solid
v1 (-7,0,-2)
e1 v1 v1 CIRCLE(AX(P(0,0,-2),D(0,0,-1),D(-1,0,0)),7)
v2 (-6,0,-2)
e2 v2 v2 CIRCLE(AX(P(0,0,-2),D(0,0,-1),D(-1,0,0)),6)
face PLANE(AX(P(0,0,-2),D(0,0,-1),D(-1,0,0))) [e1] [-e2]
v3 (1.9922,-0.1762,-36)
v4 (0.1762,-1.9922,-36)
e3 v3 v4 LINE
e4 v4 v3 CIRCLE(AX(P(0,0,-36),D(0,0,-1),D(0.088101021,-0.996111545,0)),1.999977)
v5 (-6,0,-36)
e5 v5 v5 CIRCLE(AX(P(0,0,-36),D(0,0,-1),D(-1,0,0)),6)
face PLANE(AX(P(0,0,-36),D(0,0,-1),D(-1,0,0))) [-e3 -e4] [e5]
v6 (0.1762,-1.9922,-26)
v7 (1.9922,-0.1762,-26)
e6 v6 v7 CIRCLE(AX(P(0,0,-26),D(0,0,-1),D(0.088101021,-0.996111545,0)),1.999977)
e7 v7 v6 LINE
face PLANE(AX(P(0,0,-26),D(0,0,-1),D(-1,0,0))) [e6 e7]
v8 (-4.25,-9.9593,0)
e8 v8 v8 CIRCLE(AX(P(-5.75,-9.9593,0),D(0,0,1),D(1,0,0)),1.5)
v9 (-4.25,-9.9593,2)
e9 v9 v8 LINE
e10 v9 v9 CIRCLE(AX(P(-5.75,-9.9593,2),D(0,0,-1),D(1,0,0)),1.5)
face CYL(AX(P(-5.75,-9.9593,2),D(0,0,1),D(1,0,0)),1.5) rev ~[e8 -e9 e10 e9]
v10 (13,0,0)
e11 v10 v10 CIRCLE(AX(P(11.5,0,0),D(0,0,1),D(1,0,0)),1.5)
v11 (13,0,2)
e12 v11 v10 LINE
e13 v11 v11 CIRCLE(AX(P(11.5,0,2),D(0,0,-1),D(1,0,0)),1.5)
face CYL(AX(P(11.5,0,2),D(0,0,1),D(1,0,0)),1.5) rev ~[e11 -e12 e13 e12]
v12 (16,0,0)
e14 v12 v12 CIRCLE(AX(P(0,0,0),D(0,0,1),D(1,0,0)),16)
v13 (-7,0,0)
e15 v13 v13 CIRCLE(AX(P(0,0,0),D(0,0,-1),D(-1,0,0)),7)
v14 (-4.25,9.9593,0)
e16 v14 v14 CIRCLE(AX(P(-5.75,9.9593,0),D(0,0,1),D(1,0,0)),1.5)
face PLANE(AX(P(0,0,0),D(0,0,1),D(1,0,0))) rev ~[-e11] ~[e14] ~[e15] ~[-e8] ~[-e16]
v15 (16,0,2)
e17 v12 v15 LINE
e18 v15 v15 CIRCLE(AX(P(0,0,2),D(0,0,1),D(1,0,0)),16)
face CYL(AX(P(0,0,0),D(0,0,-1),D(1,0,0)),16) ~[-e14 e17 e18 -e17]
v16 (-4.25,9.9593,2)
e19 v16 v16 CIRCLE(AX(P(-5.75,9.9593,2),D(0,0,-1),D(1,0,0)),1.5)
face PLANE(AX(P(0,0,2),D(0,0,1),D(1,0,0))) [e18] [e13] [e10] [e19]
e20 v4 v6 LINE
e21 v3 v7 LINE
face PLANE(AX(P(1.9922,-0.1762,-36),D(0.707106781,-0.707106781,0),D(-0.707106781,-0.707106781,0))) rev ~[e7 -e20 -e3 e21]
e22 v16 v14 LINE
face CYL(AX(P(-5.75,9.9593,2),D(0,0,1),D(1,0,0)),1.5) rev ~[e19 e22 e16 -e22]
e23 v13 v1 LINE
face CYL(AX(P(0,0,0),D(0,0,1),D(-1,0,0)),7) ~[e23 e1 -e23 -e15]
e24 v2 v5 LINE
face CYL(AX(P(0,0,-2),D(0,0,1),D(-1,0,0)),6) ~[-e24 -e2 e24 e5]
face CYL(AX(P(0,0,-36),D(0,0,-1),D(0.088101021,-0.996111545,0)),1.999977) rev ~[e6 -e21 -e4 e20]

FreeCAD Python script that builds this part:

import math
import FreeCAD as App
import Part
import Sketcher
Q = App.Units.Quantity

doc = App.newDocument("Part")
body = doc.addObject("PartDesign::Body", "Body")

sketch1 = doc.addObject("Sketcher::SketchObject", "Sketch")
body.addObject(sketch1)
sketch1.AttachmentSupport = (doc.XY_Plane, [""])
sketch1.MapMode = "FlatFace"
sketch1.addGeometry(Part.Circle(App.Vector(0, 0, 0), App.Vector(0, 0, 1), 16), False)
sketch1.addConstraint([
    Sketcher.Constraint("Coincident", 0, 3, -1, 1),
    Sketcher.Constraint("Diameter", 0, 32.0),
])
pad1 = doc.addObject("PartDesign::Pad", "Pad")
body.addObject(pad1)
pad1.Profile = sketch1
pad1.Length = 2

sketch2 = doc.addObject("Sketcher::SketchObject", "Sketch001")
body.addObject(sketch2)
sketch2.AttachmentSupport = (doc.XY_Plane, [""])
sketch2.MapMode = "FlatFace"
sketch2.addGeometry(Part.Circle(App.Vector(0, 0, 0), App.Vector(0, 0, 1), 7), False)
sketch2.addConstraint([
    Sketcher.Constraint("Coincident", 0, 3, -1, 1),
    Sketcher.Constraint("Diameter", 0, 14.0),
])
pad2 = doc.addObject("PartDesign::Pad", "Pad001")
body.addObject(pad2)
pad2.Profile = sketch2
pad2.Length = 2
pad2.Reversed = True

sketch3 = doc.addObject("Sketcher::SketchObject", "Sketch002")
body.addObject(sketch3)
sketch3.AttachmentSupport = (doc.XY_Plane, [""])
sketch3.MapMode = "FlatFace"
sketch3.AttachmentOffset = App.Placement(App.Vector(0, 0, -2), App.Rotation())
sketch3.addGeometry(Part.Circle(App.Vector(0, 0, 0), App.Vector(0, 0, 1), 6), False)
sketch3.addConstraint([
    Sketcher.Constraint("Coincident", 0, 3, -1, 1),
    Sketcher.Constraint("Diameter", 0, 12.0),
])
pad3 = doc.addObject("PartDesign::Pad", "Pad002")
body.addObject(pad3)
pad3.Profile = sketch3
pad3.Length = 34
pad3.Reversed = True

sketch4 = doc.addObject("Sketcher::SketchObject", "Sketch003")
body.addObject(sketch4)
sketch4.AttachmentSupport = (doc.XY_Plane, [""])
sketch4.MapMode = "FlatFace"
sketch4.AttachmentOffset = App.Placement(App.Vector(0, 0, -36), App.Rotation())
sketch4.addGeometry([
    Part.LineSegment(App.Vector(2, -0.2, 0), App.Vector(0.2, -2, 0)),
    Part.ArcOfCircle(Part.Circle(App.Vector(0, 0, 0), App.Vector(0, 0, 1), 2), math.radians(-5), math.radians(275)),
], False)
sketch4.addConstraint([
    Sketcher.Constraint("Coincident", 0, 1, 1, 1),
    Sketcher.Constraint("Coincident", 1, 2, 0, 2),
    Sketcher.Constraint("Coincident", 1, 3, -1, 1),
    Sketcher.Constraint("Radius", 1, 2.0),
    Sketcher.Constraint("Angle", 0, Q("-135 deg")),
    Sketcher.Constraint("DistanceX", 1, 2, 0, 1, 1.816),
])
pocket1 = doc.addObject("PartDesign::Pocket", "Pocket")
body.addObject(pocket1)
pocket1.Profile = sketch4
pocket1.Length = 10
pocket1.Reversed = True

sketch5 = doc.addObject("Sketcher::SketchObject", "Sketch004")
body.addObject(sketch5)
sketch5.AttachmentSupport = (doc.XY_Plane, [""])
sketch5.MapMode = "FlatFace"
sketch5.AttachmentOffset = App.Placement(App.Vector(0, 0, 2), App.Rotation())
sketch5.addGeometry([
    Part.Circle(App.Vector(-5.8, -10, 0), App.Vector(0, 0, 1), 1.5),
    Part.Circle(App.Vector(-5.8, 10, 0), App.Vector(0, 0, 1), 1.5),
    Part.Circle(App.Vector(11.5, 0, 0), App.Vector(0, 0, 1), 1.5),
], False)
sketch5.addConstraint([
    Sketcher.Constraint("Equal", 0, 1),
    Sketcher.Constraint("Equal", 1, 2),
    Sketcher.Constraint("Symmetric", 0, 3, 1, 3, -1),
    Sketcher.Constraint("PointOnObject", 2, 3, -1),
    Sketcher.Constraint("Diameter", 0, 3.0),
    Sketcher.Constraint("DistanceX", -1, 1, 2, 3, 11.5),
    Sketcher.Constraint("DistanceX", 0, 3, -1, 1, 5.75),
    Sketcher.Constraint("DistanceY", 0, 3, -1, 1, 9.9593),
])
pocket2 = doc.addObject("PartDesign::Pocket", "Pocket001")
body.addObject(pocket2)
pocket2.Profile = sketch5
pocket2.Length = 2

doc.recompute()
